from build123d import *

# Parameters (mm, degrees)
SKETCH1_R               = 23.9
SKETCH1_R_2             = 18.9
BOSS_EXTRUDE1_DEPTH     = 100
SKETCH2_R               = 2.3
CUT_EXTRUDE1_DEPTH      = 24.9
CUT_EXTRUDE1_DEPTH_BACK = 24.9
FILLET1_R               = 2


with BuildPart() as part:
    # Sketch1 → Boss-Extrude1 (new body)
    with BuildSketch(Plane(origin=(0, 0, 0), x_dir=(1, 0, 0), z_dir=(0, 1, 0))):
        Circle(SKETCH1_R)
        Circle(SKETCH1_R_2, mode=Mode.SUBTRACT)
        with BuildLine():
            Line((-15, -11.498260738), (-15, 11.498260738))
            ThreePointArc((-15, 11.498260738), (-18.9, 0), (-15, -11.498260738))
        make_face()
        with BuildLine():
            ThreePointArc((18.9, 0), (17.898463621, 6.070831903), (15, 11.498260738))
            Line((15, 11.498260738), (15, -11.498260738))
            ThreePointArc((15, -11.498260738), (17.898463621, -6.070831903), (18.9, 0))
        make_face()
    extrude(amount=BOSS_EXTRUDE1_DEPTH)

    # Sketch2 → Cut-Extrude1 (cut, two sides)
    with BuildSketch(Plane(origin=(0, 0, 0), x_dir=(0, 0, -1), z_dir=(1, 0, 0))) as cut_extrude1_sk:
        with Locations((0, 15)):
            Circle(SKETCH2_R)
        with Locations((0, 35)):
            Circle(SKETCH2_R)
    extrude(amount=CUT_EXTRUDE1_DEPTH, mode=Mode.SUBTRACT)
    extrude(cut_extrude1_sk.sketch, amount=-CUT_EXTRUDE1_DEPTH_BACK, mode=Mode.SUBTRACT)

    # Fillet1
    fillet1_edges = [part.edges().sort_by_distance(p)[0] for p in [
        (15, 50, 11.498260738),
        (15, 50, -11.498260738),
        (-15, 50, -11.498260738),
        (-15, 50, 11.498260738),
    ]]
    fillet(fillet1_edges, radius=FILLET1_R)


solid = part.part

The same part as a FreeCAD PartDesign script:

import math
import FreeCAD as App
import Part
import Sketcher

V = App.Vector


def edges_at(feature, points):
    """Names of the edges that pass closest to the given points."""
    edges = feature.Shape.Edges
    near = lambda p: min(range(len(edges)), key=lambda i: edges[i].distToShape(Part.Vertex(*p))[0])
    return sorted({f"Edge{near(p) + 1}" for p in points})

doc = App.newDocument("Part")
body = doc.addObject("PartDesign::Body", "Body")

# Sketch on XZ plane
sketch1 = body.newObject("Sketcher::SketchObject", "Sketch")
sketch1.AttachmentSupport = (doc.getObject("XZ_Plane"), [""])
sketch1.MapMode = "FlatFace"
sketch1.addGeometry([
    Part.Circle(V(0, 0, 0), V(0, 0, 1), 24),  # 0
    Part.ArcOfCircle(Part.Circle(V(0, 0, 0), V(0, 0, 1), 19), math.radians(-143), math.radians(-37)),  # 1
    Part.LineSegment(V(15, -11, 0), V(15, 11, 0)),  # 2
    Part.ArcOfCircle(Part.Circle(V(0, 0, 0), V(0, 0, 1), 19), math.radians(37), math.radians(143)),  # 3
    Part.LineSegment(V(-15, 11, 0), V(-15, -11, 0)),  # 4
], False)
sketch1.addConstraint([
    Sketcher.Constraint("Coincident", 1, 2, 2, 1),
    Sketcher.Constraint("Coincident", 2, 2, 3, 1),
    Sketcher.Constraint("Coincident", 3, 2, 4, 1),
    Sketcher.Constraint("Coincident", 4, 2, 1, 1),
    Sketcher.Constraint("Vertical", 2),
    Sketcher.Constraint("Vertical", 4),
    Sketcher.Constraint("Coincident", 0, 3, -1, 1),
    Sketcher.Constraint("Coincident", 1, 3, -1, 1),
    Sketcher.Constraint("Coincident", 3, 3, -1, 1),
    Sketcher.Constraint("Equal", 1, 3),
    Sketcher.Constraint("Horizontal", 2, 2, 3, 2),
    Sketcher.Constraint("Diameter", 0, 47.8),
    Sketcher.Constraint("Radius", 1, 18.9),
    Sketcher.Constraint("DistanceX", -1, 1, 1, 2, 15.0),
])
pad1 = body.newObject("PartDesign::Pad", "Pad")
pad1.Profile = sketch1
pad1.Length = 100
pad1.Reversed = True

# Sketch on YZ plane
sketch2 = body.newObject("Sketcher::SketchObject", "Sketch001")
sketch2.AttachmentSupport = (doc.getObject("YZ_Plane"), [""])
sketch2.MapMode = "FlatFace"
sketch2.addGeometry([
    Part.Circle(V(15, 0, 0), V(0, 0, 1), 2.3),
    Part.Circle(V(35, 0, 0), V(0, 0, 1), 2.3),
], False)
sketch2.addConstraint([
    Sketcher.Constraint("Equal", 0, 1),
    Sketcher.Constraint("PointOnObject", 0, 3, -1),
    Sketcher.Constraint("PointOnObject", 1, 3, -1),
    Sketcher.Constraint("Diameter", 0, 4.6),
    Sketcher.Constraint("DistanceX", -1, 1, 0, 3, 15.0),
    Sketcher.Constraint("DistanceX", -1, 1, 1, 3, 35.0),
])
pocket1 = body.newObject("PartDesign::Pocket", "Pocket")
pocket1.Profile = sketch2
pocket1.Type = "ThroughAll"
pocket1.Midplane = True
doc.recompute()

fillet = body.newObject("PartDesign::Fillet", "Fillet")
fillet.Base = (pocket1, edges_at(pocket1, [
    (15, 50, 11.498),
    (15, 50, -11.498),
    (-15, 50, -11.498),
    (-15, 50, 11.498),
]))
fillet.Radius = 2

doc.recompute()
